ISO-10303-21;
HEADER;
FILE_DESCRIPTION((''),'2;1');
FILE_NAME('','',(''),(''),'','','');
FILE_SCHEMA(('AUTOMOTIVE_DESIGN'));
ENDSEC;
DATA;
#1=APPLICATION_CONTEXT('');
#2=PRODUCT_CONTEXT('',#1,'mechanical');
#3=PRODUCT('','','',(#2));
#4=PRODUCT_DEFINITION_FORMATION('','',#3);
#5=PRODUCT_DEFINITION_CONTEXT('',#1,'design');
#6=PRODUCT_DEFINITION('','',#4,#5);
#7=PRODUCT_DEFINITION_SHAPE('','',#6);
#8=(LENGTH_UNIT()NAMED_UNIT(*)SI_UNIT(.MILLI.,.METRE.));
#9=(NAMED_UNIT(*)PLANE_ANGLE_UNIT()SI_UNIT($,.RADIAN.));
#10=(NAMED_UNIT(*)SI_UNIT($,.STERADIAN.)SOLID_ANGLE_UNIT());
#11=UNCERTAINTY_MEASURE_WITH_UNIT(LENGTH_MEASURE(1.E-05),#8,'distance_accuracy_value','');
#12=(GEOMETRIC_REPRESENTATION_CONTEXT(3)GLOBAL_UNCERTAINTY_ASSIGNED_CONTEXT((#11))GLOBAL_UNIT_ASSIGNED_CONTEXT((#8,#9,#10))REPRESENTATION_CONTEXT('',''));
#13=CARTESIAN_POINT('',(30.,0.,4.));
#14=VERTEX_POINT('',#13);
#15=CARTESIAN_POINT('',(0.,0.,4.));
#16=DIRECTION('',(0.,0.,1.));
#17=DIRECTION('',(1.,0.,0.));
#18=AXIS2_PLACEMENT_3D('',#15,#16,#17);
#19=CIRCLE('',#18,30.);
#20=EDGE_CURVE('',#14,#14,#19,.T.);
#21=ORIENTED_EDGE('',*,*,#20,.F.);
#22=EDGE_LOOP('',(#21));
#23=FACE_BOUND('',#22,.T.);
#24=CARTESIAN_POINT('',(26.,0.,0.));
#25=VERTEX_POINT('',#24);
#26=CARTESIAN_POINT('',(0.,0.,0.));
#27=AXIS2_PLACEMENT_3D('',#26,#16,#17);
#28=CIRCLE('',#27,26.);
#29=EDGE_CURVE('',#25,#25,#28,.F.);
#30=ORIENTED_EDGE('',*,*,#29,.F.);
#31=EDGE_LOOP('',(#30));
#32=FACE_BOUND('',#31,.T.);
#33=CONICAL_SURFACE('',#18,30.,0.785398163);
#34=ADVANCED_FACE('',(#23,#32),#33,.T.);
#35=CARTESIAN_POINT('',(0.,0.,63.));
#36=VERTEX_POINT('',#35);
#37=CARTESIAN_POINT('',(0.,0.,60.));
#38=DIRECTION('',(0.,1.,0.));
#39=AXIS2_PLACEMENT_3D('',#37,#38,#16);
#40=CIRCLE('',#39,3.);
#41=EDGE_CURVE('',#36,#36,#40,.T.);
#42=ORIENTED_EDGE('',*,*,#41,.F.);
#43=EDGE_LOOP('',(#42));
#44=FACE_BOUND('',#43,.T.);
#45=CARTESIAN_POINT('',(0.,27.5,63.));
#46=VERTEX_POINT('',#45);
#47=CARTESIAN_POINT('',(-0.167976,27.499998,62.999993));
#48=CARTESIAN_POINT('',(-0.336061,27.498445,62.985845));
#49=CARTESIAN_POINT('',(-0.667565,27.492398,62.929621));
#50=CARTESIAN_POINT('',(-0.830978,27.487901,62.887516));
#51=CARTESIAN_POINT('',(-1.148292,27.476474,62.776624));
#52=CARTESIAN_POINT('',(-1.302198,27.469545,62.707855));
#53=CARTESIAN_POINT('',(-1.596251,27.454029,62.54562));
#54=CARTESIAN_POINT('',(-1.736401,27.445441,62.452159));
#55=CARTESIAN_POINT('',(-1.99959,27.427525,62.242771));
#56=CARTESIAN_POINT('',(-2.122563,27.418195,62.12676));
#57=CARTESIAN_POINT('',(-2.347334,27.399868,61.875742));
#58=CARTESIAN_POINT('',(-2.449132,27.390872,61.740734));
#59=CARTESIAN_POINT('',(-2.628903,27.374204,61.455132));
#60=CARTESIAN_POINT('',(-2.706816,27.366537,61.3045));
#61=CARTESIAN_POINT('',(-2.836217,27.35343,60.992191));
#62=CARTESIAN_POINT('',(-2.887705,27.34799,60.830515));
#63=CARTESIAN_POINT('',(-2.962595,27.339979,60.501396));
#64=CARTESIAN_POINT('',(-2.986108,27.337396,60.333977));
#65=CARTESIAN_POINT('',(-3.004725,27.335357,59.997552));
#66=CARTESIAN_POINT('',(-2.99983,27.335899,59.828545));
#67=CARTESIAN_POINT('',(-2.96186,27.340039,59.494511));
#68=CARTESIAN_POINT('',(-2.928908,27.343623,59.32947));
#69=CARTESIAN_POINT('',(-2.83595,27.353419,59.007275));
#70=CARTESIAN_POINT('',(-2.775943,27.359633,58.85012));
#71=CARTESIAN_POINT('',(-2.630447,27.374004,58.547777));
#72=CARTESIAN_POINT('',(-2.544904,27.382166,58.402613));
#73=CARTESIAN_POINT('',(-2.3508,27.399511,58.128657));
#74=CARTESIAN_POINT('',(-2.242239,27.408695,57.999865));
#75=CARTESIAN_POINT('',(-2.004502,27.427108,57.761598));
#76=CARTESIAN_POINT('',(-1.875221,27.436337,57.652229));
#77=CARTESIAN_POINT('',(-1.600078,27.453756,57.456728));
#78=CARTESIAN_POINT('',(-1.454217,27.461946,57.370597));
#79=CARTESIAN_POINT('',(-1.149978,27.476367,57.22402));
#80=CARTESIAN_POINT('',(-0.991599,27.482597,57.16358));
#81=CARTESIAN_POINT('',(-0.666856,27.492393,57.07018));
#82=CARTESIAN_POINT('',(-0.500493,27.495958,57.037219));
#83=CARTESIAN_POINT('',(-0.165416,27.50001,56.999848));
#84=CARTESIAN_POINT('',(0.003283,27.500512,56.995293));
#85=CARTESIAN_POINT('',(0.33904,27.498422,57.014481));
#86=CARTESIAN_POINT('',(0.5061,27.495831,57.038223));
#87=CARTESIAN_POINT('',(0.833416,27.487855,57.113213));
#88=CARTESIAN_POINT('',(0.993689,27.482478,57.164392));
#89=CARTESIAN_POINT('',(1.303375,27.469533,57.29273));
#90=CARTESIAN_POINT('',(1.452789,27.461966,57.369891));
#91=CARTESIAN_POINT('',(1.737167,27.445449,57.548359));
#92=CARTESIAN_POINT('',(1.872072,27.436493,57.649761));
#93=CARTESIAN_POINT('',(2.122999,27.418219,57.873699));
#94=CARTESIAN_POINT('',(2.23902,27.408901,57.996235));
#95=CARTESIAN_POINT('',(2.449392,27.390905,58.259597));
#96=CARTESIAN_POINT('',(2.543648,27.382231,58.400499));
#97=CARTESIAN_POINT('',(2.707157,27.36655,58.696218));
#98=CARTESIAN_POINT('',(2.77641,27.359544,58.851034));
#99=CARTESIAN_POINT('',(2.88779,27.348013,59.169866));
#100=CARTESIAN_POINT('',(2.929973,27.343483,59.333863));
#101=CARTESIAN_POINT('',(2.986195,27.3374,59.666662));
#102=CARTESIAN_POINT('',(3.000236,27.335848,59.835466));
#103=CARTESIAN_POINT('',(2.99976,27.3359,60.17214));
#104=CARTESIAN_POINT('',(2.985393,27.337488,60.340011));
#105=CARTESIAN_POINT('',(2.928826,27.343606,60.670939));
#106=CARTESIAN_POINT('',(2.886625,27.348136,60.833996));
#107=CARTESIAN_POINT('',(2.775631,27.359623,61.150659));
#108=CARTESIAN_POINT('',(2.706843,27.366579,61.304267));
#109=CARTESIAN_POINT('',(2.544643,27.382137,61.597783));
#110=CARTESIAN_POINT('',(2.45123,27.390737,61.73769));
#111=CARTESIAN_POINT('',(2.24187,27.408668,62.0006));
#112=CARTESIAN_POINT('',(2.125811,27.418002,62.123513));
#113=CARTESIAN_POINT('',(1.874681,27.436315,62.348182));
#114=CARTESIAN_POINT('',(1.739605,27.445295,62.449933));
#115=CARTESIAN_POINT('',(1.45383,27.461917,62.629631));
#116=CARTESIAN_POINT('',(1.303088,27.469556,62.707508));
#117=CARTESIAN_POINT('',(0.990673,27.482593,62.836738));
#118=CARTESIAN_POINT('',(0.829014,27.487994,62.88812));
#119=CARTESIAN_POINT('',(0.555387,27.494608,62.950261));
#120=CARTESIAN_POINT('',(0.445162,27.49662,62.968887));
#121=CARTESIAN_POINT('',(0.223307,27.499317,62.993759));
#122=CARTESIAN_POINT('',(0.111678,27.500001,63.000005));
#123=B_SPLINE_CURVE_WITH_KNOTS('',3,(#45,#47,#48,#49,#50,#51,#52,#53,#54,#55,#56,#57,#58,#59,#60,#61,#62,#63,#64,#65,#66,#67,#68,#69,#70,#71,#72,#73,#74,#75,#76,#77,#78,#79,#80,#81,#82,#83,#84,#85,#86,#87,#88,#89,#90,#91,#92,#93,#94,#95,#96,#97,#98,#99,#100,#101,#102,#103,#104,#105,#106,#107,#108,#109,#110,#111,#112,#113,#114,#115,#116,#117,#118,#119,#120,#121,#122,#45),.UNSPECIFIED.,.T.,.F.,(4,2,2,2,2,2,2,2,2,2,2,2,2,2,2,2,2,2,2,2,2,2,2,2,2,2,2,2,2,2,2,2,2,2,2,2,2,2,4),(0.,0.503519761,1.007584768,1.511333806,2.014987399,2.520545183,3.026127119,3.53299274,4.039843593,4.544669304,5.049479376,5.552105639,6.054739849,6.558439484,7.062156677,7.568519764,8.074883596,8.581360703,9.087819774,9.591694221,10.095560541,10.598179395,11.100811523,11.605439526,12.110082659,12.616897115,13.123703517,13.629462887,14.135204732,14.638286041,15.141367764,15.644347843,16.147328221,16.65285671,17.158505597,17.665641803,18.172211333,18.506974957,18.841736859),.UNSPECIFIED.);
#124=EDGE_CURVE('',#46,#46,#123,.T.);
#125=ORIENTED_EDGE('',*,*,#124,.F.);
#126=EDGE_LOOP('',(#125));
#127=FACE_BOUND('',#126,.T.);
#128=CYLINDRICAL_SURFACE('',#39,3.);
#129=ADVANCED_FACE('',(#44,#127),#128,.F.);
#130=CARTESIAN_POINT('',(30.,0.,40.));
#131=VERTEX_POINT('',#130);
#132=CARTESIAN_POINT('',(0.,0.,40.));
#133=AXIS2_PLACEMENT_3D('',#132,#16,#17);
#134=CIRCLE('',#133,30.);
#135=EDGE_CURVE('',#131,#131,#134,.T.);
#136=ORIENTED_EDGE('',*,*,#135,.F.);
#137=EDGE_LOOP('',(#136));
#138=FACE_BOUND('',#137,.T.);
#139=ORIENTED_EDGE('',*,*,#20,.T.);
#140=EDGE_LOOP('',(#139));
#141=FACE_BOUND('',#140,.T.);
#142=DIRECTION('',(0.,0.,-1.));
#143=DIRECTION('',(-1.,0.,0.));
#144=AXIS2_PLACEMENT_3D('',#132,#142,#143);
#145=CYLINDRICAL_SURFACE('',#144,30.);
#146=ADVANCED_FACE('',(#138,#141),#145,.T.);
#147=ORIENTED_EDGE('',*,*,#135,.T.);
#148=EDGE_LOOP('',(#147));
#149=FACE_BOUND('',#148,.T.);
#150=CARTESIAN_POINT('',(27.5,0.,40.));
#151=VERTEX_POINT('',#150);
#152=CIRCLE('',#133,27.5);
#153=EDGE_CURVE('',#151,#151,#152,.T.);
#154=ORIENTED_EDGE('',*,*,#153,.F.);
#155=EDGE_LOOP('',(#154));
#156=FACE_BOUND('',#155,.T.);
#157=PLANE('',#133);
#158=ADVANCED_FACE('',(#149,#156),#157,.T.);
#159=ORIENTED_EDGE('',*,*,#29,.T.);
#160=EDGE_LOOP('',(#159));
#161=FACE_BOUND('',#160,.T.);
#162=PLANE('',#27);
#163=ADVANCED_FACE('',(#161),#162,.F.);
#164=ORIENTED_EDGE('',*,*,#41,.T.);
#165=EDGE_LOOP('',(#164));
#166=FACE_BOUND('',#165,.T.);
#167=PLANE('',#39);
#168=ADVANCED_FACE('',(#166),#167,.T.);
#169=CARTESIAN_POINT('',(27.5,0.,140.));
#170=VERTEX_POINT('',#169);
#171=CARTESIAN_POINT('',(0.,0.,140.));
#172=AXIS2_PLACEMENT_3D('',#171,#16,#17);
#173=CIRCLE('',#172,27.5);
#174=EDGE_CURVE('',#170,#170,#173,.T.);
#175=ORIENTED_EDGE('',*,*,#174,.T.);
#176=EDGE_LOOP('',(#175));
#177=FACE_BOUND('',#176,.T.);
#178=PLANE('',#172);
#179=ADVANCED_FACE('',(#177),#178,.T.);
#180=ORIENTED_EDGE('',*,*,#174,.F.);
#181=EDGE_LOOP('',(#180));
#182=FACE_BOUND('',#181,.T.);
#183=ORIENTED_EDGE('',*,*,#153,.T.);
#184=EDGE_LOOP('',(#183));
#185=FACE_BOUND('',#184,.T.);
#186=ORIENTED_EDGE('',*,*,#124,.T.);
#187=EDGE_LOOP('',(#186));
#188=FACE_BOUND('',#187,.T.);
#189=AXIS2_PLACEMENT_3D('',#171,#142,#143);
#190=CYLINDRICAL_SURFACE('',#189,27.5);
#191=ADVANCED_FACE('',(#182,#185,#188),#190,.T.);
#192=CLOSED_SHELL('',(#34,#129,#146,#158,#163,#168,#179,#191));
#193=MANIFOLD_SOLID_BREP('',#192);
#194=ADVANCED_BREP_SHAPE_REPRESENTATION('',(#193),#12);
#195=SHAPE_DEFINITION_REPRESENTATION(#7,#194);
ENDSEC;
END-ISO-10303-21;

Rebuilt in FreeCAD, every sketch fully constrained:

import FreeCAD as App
import Part
import Sketcher
from FreeCAD import Vector


def edges_at(feature, points):
    """Names of the edges that pass closest to the given points."""
    edges = feature.Shape.Edges
    near = lambda p: min(range(len(edges)), key=lambda i: edges[i].distToShape(Part.Vertex(*p))[0])
    return sorted({f"Edge{near(p) + 1}" for p in points})

doc = App.newDocument("Part")
body = doc.addObject("PartDesign::Body", "Body")

# Sketch on XY plane
sketch1 = body.newObject("Sketcher::SketchObject", "Sketch")
sketch1.AttachmentSupport = (doc.getObject("XY_Plane"), [""])
sketch1.MapMode = "FlatFace"
sketch1.addGeometry(Part.Circle(Vector(0, 0, 0), Vector(0, 0, 1), 30), False)
sketch1.addConstraint(Sketcher.Constraint("Coincident", 0, 3, -1, 1))
sketch1.addConstraint(Sketcher.Constraint("Diameter", 0, 60.0))
pad1 = body.newObject("PartDesign::Pad", "Pad")
pad1.Profile = sketch1
pad1.Length = 40

# Sketch on XY plane
sketch2 = body.newObject("Sketcher::SketchObject", "Sketch001")
sketch2.AttachmentSupport = (doc.getObject("XY_Plane"), [""])
sketch2.MapMode = "FlatFace"
sketch2.AttachmentOffset = App.Placement(Vector(0, 0, 40), App.Rotation())
sketch2.addGeometry(Part.Circle(Vector(0, 0, 0), Vector(0, 0, 1), 28), False)
sketch2.addConstraint(Sketcher.Constraint("Coincident", 0, 3, -1, 1))
sketch2.addConstraint(Sketcher.Constraint("Diameter", 0, 55.0))
pad2 = body.newObject("PartDesign::Pad", "Pad001")
pad2.Profile = sketch2
pad2.Length = 100

# Sketch on XZ plane
sketch3 = body.newObject("Sketcher::SketchObject", "Sketch002")
sketch3.AttachmentSupport = (doc.getObject("XZ_Plane"), [""])
sketch3.MapMode = "FlatFace"
sketch3.AttachmentOffset = App.Placement(Vector(0, 0, -30), App.Rotation())
sketch3.addGeometry(Part.Circle(Vector(0, 60, 0), Vector(0, 0, 1), 3), False)
sketch3.addConstraint(Sketcher.Constraint("PointOnObject", 0, 3, -2))
sketch3.addConstraint(Sketcher.Constraint("Diameter", 0, 6.0))
sketch3.addConstraint(Sketcher.Constraint("DistanceY", -1, 1, 0, 3, 60.0))
pocket1 = body.newObject("PartDesign::Pocket", "Pocket")
pocket1.Profile = sketch3
pocket1.Length = 30
pocket1.Reversed = True
doc.recompute()

chamfer = body.newObject("PartDesign::Chamfer", "Chamfer")
chamfer.Base = (pocket1, edges_at(pocket1, [(-30, 0, 0)]))
chamfer.Size = 4

doc.recompute()
